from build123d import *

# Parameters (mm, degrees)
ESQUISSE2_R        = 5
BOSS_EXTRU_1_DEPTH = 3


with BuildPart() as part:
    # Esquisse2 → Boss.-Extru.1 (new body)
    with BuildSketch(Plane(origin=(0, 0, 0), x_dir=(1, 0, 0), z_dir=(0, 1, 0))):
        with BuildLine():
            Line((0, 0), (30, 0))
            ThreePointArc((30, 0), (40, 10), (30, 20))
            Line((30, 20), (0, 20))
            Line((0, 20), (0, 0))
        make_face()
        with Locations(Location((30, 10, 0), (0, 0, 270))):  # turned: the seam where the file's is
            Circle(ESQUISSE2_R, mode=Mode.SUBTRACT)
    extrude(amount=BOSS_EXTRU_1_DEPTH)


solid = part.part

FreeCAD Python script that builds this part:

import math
import FreeCAD as App
import Part
import Sketcher

V = App.Vector
Q = App.Units.Quantity

doc = App.newDocument("Part")
body = doc.addObject("PartDesign::Body", "Body")

# Sketch on XZ plane
sketch1 = doc.addObject("Sketcher::SketchObject", "Sketch")
body.addObject(sketch1)
sketch1.AttachmentSupport = (doc.XZ_Plane, [""])
sketch1.MapMode = "FlatFace"
sketch1.addGeometry([
    Part.LineSegment(V(0, 0, 0), V(30, 0, 0)),  # 0
    Part.ArcOfCircle(Part.Circle(V(30, -10, 0), V(0, 0, 1), 10), math.radians(-90), math.radians(90)),  # 1
    Part.LineSegment(V(30, -20, 0), V(0, -20, 0)),  # 2
    Part.LineSegment(V(0, -20, 0), V(0, 0, 0)),  # 3
    Part.Circle(V(30, -10, 0), V(0, 0, 1), 5),  # 4
], False)
sketch1.addConstraint([
    Sketcher.Constraint("Tangent", 0, 2, 1, 2),
    Sketcher.Constraint("Tangent", 1, 1, 2, 1),
    Sketcher.Constraint("Coincident", 2, 2, 3, 1),
    Sketcher.Constraint("Coincident", 3, 2, 0, 1),
    Sketcher.Constraint("Horizontal", 0),
    Sketcher.Constraint("Horizontal", 2),
    Sketcher.Constraint("Vertical", 3),
    Sketcher.Constraint("Coincident", 3, 2, -1, 1),
    Sketcher.Constraint("Coincident", 4, 3, 1, 3),
    Sketcher.Constraint("Diameter", 4, Q("10 mm")),
    Sketcher.Constraint("Radius", 1, Q("10 mm")),
    Sketcher.Constraint("DistanceX", 0, 1, 0, 2, Q("30 mm")),
])
pad1 = doc.addObject("PartDesign::Pad", "Pad")
body.addObject(pad1)
pad1.Profile = sketch1
pad1.Length = 3
pad1.Reversed = True

doc.recompute()
